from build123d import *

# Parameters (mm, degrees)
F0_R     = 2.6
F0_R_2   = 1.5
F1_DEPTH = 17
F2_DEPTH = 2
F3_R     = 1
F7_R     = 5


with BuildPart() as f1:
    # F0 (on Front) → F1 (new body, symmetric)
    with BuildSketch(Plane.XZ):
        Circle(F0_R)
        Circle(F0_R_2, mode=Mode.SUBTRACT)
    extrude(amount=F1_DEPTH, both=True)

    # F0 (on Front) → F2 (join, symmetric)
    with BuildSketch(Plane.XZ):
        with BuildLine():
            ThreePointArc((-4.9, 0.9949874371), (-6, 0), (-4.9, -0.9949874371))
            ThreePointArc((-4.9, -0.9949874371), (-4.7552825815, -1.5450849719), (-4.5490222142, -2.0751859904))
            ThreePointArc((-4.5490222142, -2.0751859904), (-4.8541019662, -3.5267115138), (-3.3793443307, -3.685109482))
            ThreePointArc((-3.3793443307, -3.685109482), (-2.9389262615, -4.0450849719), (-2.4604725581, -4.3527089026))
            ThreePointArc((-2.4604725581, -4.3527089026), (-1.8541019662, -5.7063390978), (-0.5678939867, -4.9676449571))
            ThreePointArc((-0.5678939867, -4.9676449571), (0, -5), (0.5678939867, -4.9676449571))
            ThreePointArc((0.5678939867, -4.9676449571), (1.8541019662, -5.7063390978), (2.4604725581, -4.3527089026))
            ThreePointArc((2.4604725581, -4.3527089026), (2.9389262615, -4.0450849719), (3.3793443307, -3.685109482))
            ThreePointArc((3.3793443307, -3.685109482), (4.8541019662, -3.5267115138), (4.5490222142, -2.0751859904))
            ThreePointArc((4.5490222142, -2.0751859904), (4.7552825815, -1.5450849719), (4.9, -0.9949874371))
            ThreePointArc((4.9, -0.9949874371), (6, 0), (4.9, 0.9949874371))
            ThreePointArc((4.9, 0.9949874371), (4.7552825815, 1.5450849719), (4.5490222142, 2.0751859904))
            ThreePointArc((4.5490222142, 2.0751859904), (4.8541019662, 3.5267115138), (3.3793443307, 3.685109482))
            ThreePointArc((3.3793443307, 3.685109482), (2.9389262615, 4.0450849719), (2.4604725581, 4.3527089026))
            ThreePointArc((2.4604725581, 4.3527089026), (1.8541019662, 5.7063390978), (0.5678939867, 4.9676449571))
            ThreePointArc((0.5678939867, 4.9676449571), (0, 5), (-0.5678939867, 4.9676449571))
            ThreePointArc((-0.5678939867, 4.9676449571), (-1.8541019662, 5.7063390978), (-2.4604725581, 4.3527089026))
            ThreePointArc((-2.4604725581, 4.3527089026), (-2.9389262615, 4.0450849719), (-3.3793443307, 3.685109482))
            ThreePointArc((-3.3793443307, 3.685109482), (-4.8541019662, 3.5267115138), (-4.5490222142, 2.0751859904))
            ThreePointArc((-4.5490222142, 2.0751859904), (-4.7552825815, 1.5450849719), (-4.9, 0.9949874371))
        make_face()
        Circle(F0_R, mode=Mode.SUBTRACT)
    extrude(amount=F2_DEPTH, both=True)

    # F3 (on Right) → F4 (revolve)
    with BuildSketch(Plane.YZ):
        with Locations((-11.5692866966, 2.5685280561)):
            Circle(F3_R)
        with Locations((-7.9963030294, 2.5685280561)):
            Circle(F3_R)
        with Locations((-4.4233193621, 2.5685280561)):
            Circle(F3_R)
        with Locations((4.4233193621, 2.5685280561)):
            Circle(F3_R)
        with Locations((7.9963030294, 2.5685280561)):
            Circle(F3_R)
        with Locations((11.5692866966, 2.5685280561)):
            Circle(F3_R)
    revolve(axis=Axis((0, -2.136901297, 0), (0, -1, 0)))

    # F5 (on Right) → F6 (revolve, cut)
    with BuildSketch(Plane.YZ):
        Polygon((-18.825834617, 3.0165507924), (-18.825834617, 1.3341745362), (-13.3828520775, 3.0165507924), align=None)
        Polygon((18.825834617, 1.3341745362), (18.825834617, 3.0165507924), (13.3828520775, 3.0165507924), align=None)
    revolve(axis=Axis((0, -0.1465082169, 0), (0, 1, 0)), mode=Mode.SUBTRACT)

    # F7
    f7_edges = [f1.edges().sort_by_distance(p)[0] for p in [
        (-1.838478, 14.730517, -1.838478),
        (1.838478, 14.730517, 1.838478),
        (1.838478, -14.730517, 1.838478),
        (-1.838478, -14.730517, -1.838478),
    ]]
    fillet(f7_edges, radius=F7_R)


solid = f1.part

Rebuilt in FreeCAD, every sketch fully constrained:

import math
import FreeCAD as App
import Part
import Sketcher

V = App.Vector
Q = App.Units.Quantity


def edges_at(feature, points):
    """Names of the edges that pass closest to the given points."""
    edges = feature.Shape.Edges
    near = lambda p: min(range(len(edges)), key=lambda i: edges[i].distToShape(Part.Vertex(*p))[0])
    return sorted({f"Edge{near(p) + 1}" for p in points})


def add_polygon(sketch, points):
    """Adds a closed chain of lines whose ends are joined by coincident constraints."""
    first, n = sketch.GeometryCount, len(points)
    for a, b in zip(points, points[1:] + points[:1]):
        sketch.addGeometry(Part.LineSegment(App.Vector(*a, 0), App.Vector(*b, 0)), False)
    for i in range(n):
        sketch.addConstraint(Sketcher.Constraint("Coincident", first + i, 2, first + (i + 1) % n, 1))

doc = App.newDocument("Part")
body = doc.addObject("PartDesign::Body", "Body")

sketch1 = body.newObject("Sketcher::SketchObject", "Sketch")
sketch1.AttachmentSupport = (doc.getObject("XZ_Plane"), [""])
sketch1.MapMode = "FlatFace"
sketch1.addGeometry([
    Part.Circle(V(0, 0, 0), V(0, 0, 1), 2.6),
    Part.Circle(V(0, 0, 0), V(0, 0, 1), 1.5),
], False)
sketch1.addConstraint([
    Sketcher.Constraint("Coincident", 0, 3, -1, 1),
    Sketcher.Constraint("Coincident", 1, 3, -1, 1),
    Sketcher.Constraint("Diameter", 1, Q("3 mm")),
    Sketcher.Constraint("Diameter", 0, Q("5.2 mm")),
])
pad1 = body.newObject("PartDesign::Pad", "Pad")
pad1.Profile = sketch1
pad1.Length = 34
pad1.Midplane = True

sketch2 = body.newObject("Sketcher::SketchObject", "Sketch001")
sketch2.AttachmentSupport = (doc.getObject("XZ_Plane"), [""])
sketch2.MapMode = "FlatFace"
sketch2.addGeometry([
    Part.ArcOfCircle(Part.Circle(V(-5, 0, 0), V(0, 0, 1), 1), math.radians(84.26083), math.radians(275.73917)),
    Part.ArcOfCircle(Part.Circle(V(0, 0, 0), V(0, 0, 1), 5), math.radians(-168.521659), math.radians(-155.478341)),
    Part.ArcOfCircle(Part.Circle(V(-4.045085, -2.938926, 0), V(0, 0, 1), 1), math.radians(120.26083), math.radians(311.73917)),
    Part.ArcOfCircle(Part.Circle(V(0, 0, 0), V(0, 0, 1), 5), math.radians(-132.521659), math.radians(-119.478341)),
    Part.ArcOfCircle(Part.Circle(V(-1.545085, -4.755283, 0), V(0, 0, 1), 1), math.radians(156.26083), math.radians(347.73917)),
    Part.ArcOfCircle(Part.Circle(V(0, 0, 0), V(0, 0, 1), 5), math.radians(-96.521659), math.radians(-83.478341)),
    Part.ArcOfCircle(Part.Circle(V(1.545085, -4.755283, 0), V(0, 0, 1), 1), math.radians(-167.73917), math.radians(23.73917)),
    Part.ArcOfCircle(Part.Circle(V(0, 0, 0), V(0, 0, 1), 5), math.radians(-60.521659), math.radians(-47.478341)),
    Part.ArcOfCircle(Part.Circle(V(4.045085, -2.938926, 0), V(0, 0, 1), 1), math.radians(-131.73917), math.radians(59.73917)),
    Part.ArcOfCircle(Part.Circle(V(0, 0, 0), V(0, 0, 1), 5), math.radians(-24.521659), math.radians(-11.478341)),
    Part.ArcOfCircle(Part.Circle(V(5, 0, 0), V(0, 0, 1), 1), math.radians(-95.73917), math.radians(95.73917)),
    Part.ArcOfCircle(Part.Circle(V(0, 0, 0), V(0, 0, 1), 5), math.radians(11.478341), math.radians(24.521659)),
    Part.ArcOfCircle(Part.Circle(V(4.045085, 2.938926, 0), V(0, 0, 1), 1), math.radians(-59.73917), math.radians(131.73917)),
    Part.ArcOfCircle(Part.Circle(V(0, 0, 0), V(0, 0, 1), 5), math.radians(47.478341), math.radians(60.521659)),
    Part.ArcOfCircle(Part.Circle(V(1.545085, 4.755283, 0), V(0, 0, 1), 1), math.radians(-23.73917), math.radians(167.73917)),
    Part.ArcOfCircle(Part.Circle(V(0, 0, 0), V(0, 0, 1), 5), math.radians(83.478341), math.radians(96.521659)),
    Part.ArcOfCircle(Part.Circle(V(-1.545085, 4.755283, 0), V(0, 0, 1), 1), math.radians(12.26083), math.radians(203.73917)),
    Part.ArcOfCircle(Part.Circle(V(0, 0, 0), V(0, 0, 1), 5), math.radians(119.478341), math.radians(132.521659)),
    Part.ArcOfCircle(Part.Circle(V(-4.045085, 2.938926, 0), V(0, 0, 1), 1), math.radians(48.26083), math.radians(239.73917)),
    Part.ArcOfCircle(Part.Circle(V(0, 0, 0), V(0, 0, 1), 5), math.radians(155.478341), math.radians(168.521659)),
    Part.Circle(V(0, 0, 0), V(0, 0, 1), 2.6),
], False)
sketch2.addConstraint([
    Sketcher.Constraint("Coincident", 0, 2, 1, 1),
    Sketcher.Constraint("Coincident", 1, 2, 2, 1),
    Sketcher.Constraint("Coincident", 2, 2, 3, 1),
    Sketcher.Constraint("Coincident", 3, 2, 4, 1),
    Sketcher.Constraint("Coincident", 4, 2, 5, 1),
    Sketcher.Constraint("Coincident", 5, 2, 6, 1),
    Sketcher.Constraint("Coincident", 6, 2, 7, 1),
    Sketcher.Constraint("Coincident", 7, 2, 8, 1),
    Sketcher.Constraint("Coincident", 8, 2, 9, 1),
    Sketcher.Constraint("Coincident", 9, 2, 10, 1),
    Sketcher.Constraint("Coincident", 10, 2, 11, 1),
    Sketcher.Constraint("Coincident", 11, 2, 12, 1),
    Sketcher.Constraint("Coincident", 12, 2, 13, 1),
    Sketcher.Constraint("Coincident", 13, 2, 14, 1),
    Sketcher.Constraint("Coincident", 14, 2, 15, 1),
    Sketcher.Constraint("Coincident", 15, 2, 16, 1),
    Sketcher.Constraint("Coincident", 16, 2, 17, 1),
    Sketcher.Constraint("Coincident", 17, 2, 18, 1),
    Sketcher.Constraint("Coincident", 18, 2, 19, 1),
    Sketcher.Constraint("Coincident", 19, 2, 0, 1),
    Sketcher.Constraint("Coincident", 1, 3, -1, 1),
    Sketcher.Constraint("Coincident", 3, 3, -1, 1),
    Sketcher.Constraint("Coincident", 5, 3, -1, 1),
    Sketcher.Constraint("Coincident", 7, 3, -1, 1),
    Sketcher.Constraint("Coincident", 9, 3, -1, 1),
    Sketcher.Constraint("Coincident", 11, 3, -1, 1),
    Sketcher.Constraint("Coincident", 13, 3, -1, 1),
    Sketcher.Constraint("Coincident", 15, 3, -1, 1),
    Sketcher.Constraint("Coincident", 17, 3, -1, 1),
    Sketcher.Constraint("Coincident", 19, 3, -1, 1),
    Sketcher.Constraint("Coincident", 20, 3, -1, 1),
    Sketcher.Constraint("Equal", 0, 2),
    Sketcher.Constraint("Equal", 1, 3),
    Sketcher.Constraint("Equal", 2, 4),
    Sketcher.Constraint("Equal", 3, 5),
    Sketcher.Constraint("Equal", 4, 6),
    Sketcher.Constraint("Equal", 5, 7),
    Sketcher.Constraint("Equal", 6, 8),
    Sketcher.Constraint("Equal", 7, 9),
    Sketcher.Constraint("Equal", 8, 10),
    Sketcher.Constraint("Equal", 9, 11),
    Sketcher.Constraint("Equal", 10, 12),
    Sketcher.Constraint("Equal", 11, 13),
    Sketcher.Constraint("Equal", 12, 14),
    Sketcher.Constraint("Equal", 13, 15),
    Sketcher.Constraint("Equal", 14, 16),
    Sketcher.Constraint("Equal", 15, 17),
    Sketcher.Constraint("Equal", 16, 18),
    Sketcher.Constraint("Equal", 17, 19),
    Sketcher.Constraint("Symmetric", 0, 3, 10, 3, -1, 1),
    Sketcher.Constraint("Symmetric", 2, 3, 12, 3, -1, 1),
    Sketcher.Constraint("Symmetric", 4, 3, 14, 3, -1, 1),
    Sketcher.Constraint("Symmetric", 6, 3, 16, 3, -1, 1),
    Sketcher.Constraint("Symmetric", 8, 3, 18, 3, -1, 1),
    Sketcher.Constraint("Symmetric", 4, 3, 6, 3, -2),
    Sketcher.Constraint("Symmetric", 2, 3, 8, 3, -2),
    Sketcher.Constraint("PointOnObject", 0, 3, -1),
    Sketcher.Constraint("Radius", 0, Q("1 mm")),
    Sketcher.Constraint("Radius", 1, Q("5 mm")),
    Sketcher.Constraint("Diameter", 20, Q("5.2 mm")),
    Sketcher.Constraint("DistanceX", 0, 3, -1, 1, Q("5 mm")),
    Sketcher.Constraint("DistanceX", 2, 3, 4, 3, Q("2.5 mm")),
    Sketcher.Constraint("DistanceY", 1, 2, 0, 2, Q("1.080199 mm")),
    Sketcher.Constraint("DistanceY", 3, 2, 2, 2, Q("0.667599 mm")),
    Sketcher.Constraint("DistanceY", 2, 2, -1, 1, Q("3.685109 mm")),
])
pad2 = body.newObject("PartDesign::Pad", "Pad001")
pad2.Profile = sketch2
pad2.Length = 4
pad2.Midplane = True

sketch3 = body.newObject("Sketcher::SketchObject", "Sketch002")
sketch3.AttachmentSupport = (doc.getObject("YZ_Plane"), [""])
sketch3.MapMode = "FlatFace"
sketch3.addGeometry([
    Part.Circle(V(-11.569287, 2.568528, 0), V(0, 0, 1), 1),
    Part.Circle(V(-7.996303, 2.568528, 0), V(0, 0, 1), 1),
    Part.Circle(V(-4.423319, 2.568528, 0), V(0, 0, 1), 1),
    Part.Circle(V(4.423319, 2.568528, 0), V(0, 0, 1), 1),
    Part.Circle(V(7.996303, 2.568528, 0), V(0, 0, 1), 1),
    Part.Circle(V(11.569287, 2.568528, 0), V(0, 0, 1), 1),
], False)
sketch3.addConstraint([
    Sketcher.Constraint("Equal", 0, 1),
    Sketcher.Constraint("Equal", 1, 2),
    Sketcher.Constraint("Equal", 2, 3),
    Sketcher.Constraint("Equal", 3, 4),
    Sketcher.Constraint("Equal", 4, 5),
    Sketcher.Constraint("Symmetric", 2, 3, 3, 3, -2),
    Sketcher.Constraint("Symmetric", 1, 3, 4, 3, -2),
    Sketcher.Constraint("Symmetric", 0, 3, 5, 3, -2),
    Sketcher.Constraint("Horizontal", 0, 3, 1, 3),
    Sketcher.Constraint("Horizontal", 1, 3, 2, 3),
    Sketcher.Constraint("Diameter", 0, Q("2 mm")),
    Sketcher.Constraint("DistanceY", -1, 1, 0, 3, Q("2.568528 mm")),
    Sketcher.Constraint("DistanceX", 2, 3, -1, 1, Q("4.423319 mm")),
    Sketcher.Constraint("DistanceX", 0, 3, 4, 3, Q("19.56559 mm")),
    Sketcher.Constraint("DistanceX", 0, 3, -1, 1, Q("11.569287 mm")),
])
revolution = body.newObject("PartDesign::Revolution", "Revolution")
revolution.Profile = sketch3
revolution.ReferenceAxis = (sketch3, ["H_Axis"])
revolution.Angle = 360

sketch4 = body.newObject("Sketcher::SketchObject", "Sketch003")
sketch4.AttachmentSupport = (doc.getObject("YZ_Plane"), [""])
sketch4.MapMode = "FlatFace"
add_polygon(sketch4, [(-18.825835, 3.016551), (-18.825835, 1.334175), (-13.382852, 3.016551)])
add_polygon(sketch4, [(18.825835, 1.334175), (18.825835, 3.016551), (13.382852, 3.016551)])
sketch4.addConstraint([
    Sketcher.Constraint("Vertical", 0),
    Sketcher.Constraint("Horizontal", 2),
    Sketcher.Constraint("Vertical", 3),
    Sketcher.Constraint("Horizontal", 4),
    Sketcher.Constraint("Symmetric", 2, 2, 3, 2, -2),
    Sketcher.Constraint("Horizontal", 0, 2, 5, 2),
    Sketcher.Constraint("Equal", 2, 4),
    Sketcher.Constraint("DistanceX", 2, 2, 2, 1, Q("5.442983 mm")),
    Sketcher.Constraint("DistanceY", 0, 2, 0, 1, Q("1.682376 mm")),
    Sketcher.Constraint("DistanceY", -1, 1, 1, 2, Q("3.016551 mm")),
    Sketcher.Constraint("DistanceX", 2, 2, 3, 2, Q("37.651669 mm")),
])
groove = body.newObject("PartDesign::Groove", "Groove")
groove.Profile = sketch4
groove.ReferenceAxis = (sketch4, ["H_Axis"])
groove.Angle = 360
doc.recompute()

fillet = body.newObject("PartDesign::Fillet", "Fillet")
fillet.Base = (groove, edges_at(groove, [
    (-1.838, 14.731, -1.838),
    (1.838, 14.731, 1.838),
    (1.838, -14.731, 1.838),
    (-1.838, -14.731, -1.838),
]))
fillet.Radius = 5

doc.recompute()
